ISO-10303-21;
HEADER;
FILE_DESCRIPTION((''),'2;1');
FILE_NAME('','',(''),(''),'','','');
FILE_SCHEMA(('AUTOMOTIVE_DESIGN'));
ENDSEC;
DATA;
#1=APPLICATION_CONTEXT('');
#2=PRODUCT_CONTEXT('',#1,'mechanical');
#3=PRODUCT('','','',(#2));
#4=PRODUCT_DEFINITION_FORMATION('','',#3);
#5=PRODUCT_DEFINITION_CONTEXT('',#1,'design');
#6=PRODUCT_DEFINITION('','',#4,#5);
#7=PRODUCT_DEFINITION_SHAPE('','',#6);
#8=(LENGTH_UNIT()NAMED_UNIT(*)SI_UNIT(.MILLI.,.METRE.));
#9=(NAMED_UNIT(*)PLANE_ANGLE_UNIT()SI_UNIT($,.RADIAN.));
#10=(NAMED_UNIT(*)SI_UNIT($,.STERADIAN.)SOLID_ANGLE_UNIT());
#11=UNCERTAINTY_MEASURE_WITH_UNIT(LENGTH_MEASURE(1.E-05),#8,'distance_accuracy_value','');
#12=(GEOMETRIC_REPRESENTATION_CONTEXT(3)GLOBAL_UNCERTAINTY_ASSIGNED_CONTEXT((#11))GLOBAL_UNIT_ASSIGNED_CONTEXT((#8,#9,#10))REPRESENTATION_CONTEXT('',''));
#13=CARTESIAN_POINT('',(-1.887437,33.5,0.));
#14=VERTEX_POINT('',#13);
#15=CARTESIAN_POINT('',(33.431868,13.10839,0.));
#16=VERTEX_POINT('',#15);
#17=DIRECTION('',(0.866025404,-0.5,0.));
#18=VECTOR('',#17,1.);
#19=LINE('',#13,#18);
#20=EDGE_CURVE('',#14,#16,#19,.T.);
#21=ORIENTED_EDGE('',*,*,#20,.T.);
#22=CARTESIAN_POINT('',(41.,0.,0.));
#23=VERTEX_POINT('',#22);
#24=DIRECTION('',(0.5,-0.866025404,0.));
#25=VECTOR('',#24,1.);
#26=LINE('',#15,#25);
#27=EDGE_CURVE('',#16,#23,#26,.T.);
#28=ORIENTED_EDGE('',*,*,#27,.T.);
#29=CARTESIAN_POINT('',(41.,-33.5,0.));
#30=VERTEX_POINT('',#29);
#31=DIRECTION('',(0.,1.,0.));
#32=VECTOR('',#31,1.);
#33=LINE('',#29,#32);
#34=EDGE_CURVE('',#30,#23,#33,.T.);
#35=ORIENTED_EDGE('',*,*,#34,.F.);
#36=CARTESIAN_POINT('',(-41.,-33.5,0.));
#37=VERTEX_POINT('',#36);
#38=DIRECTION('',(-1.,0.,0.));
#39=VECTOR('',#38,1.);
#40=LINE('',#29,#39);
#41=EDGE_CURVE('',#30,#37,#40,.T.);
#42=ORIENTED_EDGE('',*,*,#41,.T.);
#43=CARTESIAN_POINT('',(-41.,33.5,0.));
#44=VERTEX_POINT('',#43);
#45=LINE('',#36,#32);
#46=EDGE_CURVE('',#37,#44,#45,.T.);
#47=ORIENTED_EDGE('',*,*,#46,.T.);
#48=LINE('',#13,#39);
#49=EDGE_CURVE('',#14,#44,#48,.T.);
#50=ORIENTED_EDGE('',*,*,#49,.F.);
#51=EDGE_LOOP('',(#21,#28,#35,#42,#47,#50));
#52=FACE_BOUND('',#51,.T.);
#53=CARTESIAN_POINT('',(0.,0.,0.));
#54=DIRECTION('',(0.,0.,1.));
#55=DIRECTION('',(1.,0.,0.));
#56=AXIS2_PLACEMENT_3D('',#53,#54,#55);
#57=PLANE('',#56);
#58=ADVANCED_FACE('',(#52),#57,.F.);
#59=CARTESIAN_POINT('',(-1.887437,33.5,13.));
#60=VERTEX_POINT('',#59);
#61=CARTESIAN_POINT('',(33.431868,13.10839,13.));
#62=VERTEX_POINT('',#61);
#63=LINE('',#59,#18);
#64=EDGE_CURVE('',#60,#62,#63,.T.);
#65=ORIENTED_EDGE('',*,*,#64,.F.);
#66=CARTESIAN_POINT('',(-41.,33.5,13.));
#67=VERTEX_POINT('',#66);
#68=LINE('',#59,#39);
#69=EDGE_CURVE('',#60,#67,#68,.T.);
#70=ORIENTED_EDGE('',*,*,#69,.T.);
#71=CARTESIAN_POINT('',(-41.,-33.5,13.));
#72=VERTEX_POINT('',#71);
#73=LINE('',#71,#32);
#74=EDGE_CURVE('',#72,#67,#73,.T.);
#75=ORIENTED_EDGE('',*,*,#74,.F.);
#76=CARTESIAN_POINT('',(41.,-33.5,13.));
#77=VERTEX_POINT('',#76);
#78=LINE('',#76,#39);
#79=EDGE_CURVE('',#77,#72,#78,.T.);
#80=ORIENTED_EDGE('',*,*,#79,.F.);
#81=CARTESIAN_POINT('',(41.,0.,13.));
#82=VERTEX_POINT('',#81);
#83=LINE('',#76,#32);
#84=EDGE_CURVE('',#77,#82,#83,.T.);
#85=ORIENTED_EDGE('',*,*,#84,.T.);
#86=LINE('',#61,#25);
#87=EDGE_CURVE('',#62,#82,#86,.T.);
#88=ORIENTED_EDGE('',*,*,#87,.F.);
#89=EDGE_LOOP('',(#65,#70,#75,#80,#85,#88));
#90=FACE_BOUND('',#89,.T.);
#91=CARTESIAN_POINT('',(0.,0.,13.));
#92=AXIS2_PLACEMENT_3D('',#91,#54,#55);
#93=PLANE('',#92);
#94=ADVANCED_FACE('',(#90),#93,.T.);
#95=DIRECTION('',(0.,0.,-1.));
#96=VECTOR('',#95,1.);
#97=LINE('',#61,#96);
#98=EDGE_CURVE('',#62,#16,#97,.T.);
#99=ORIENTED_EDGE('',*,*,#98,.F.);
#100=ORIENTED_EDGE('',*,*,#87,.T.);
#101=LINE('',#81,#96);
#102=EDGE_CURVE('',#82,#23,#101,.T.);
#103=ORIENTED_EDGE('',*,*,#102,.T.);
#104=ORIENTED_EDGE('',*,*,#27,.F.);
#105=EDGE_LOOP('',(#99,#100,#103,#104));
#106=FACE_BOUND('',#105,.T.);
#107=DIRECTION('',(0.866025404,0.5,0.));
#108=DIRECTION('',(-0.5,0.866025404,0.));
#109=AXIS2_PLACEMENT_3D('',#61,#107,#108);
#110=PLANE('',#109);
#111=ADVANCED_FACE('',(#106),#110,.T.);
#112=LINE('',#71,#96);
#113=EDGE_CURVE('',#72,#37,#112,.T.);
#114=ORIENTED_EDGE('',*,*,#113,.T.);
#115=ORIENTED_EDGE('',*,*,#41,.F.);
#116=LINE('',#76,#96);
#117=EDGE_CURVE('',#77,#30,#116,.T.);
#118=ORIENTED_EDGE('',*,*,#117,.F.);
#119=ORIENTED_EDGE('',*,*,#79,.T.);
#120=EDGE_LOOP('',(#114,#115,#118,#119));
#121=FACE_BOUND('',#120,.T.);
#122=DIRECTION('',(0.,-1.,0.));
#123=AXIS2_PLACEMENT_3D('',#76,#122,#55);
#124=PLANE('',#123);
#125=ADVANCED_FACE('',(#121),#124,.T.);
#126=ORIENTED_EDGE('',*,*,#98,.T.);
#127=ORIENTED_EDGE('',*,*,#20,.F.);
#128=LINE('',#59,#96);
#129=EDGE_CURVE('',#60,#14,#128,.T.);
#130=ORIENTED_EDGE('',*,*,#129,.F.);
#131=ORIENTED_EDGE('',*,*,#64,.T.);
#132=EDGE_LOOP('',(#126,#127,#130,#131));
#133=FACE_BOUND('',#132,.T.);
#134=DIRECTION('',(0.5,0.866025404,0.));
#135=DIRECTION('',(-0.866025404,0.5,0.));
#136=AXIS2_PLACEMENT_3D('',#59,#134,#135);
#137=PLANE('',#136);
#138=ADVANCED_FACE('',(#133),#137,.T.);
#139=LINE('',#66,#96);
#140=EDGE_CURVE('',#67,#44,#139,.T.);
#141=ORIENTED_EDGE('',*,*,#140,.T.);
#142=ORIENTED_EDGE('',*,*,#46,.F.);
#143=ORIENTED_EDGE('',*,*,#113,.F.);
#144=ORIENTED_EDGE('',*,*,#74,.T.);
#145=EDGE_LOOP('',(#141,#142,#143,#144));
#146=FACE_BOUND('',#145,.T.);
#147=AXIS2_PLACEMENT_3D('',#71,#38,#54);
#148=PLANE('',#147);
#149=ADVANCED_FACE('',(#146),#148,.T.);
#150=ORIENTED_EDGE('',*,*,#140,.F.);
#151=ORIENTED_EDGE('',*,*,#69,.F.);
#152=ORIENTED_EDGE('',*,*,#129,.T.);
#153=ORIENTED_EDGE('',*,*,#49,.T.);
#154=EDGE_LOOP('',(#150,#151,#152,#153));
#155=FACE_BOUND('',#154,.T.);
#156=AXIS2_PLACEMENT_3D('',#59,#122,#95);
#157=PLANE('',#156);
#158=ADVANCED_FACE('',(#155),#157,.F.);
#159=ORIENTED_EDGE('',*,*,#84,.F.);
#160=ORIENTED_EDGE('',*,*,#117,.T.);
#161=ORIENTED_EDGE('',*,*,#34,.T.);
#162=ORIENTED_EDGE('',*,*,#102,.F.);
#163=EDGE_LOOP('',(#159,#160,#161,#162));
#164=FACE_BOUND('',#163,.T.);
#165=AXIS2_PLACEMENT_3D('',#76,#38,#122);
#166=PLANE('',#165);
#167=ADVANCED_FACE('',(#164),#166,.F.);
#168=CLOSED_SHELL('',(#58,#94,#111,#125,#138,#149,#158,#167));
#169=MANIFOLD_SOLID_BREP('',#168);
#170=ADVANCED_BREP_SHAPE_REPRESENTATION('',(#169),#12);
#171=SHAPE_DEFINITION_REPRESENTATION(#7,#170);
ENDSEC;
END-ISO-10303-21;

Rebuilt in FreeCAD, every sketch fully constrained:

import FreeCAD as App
import Part
import Sketcher

V = App.Vector
Q = App.Units.Quantity

doc = App.newDocument("Part")
params = doc.addObject("Spreadsheet::Sheet", "Params")
for row, (alias, value) in enumerate([
    ("sketch1_width", "82 mm"),
    ("sketch1_height", "67 mm"),
    ("pad1_length", "13 mm"),
], start=1):
    params.set(f"A{row}", alias)
    params.set(f"B{row}", "=" + value)
    params.setAlias(f"B{row}", alias)

body = doc.addObject("PartDesign::Body", "Body")

sketch1 = body.newObject("Sketcher::SketchObject", "Sketch")
sketch1.AttachmentSupport = (doc.getObject("XY_Plane"), [""])
sketch1.MapMode = "FlatFace"
sketch1.addGeometry(Part.LineSegment(V(-41, -34, 0), V(41, -34, 0)), False)
sketch1.addGeometry(Part.LineSegment(V(41, -34, 0), V(41, 0, 0)), False)
sketch1.addGeometry(Part.LineSegment(V(41, 0, 0), V(33, 13, 0)), False)
sketch1.addGeometry(Part.LineSegment(V(33, 13, 0), V(-2, 34, 0)), False)
sketch1.addGeometry(Part.LineSegment(V(-2, 34, 0), V(-41, 34, 0)), False)
sketch1.addGeometry(Part.LineSegment(V(-41, 34, 0), V(-41, -34, 0)), False)
sketch1.addConstraint(Sketcher.Constraint("Coincident", 0, 2, 1, 1))
sketch1.addConstraint(Sketcher.Constraint("Coincident", 1, 2, 2, 1))
sketch1.addConstraint(Sketcher.Constraint("Coincident", 2, 2, 3, 1))
sketch1.addConstraint(Sketcher.Constraint("Coincident", 3, 2, 4, 1))
sketch1.addConstraint(Sketcher.Constraint("Coincident", 4, 2, 5, 1))
sketch1.addConstraint(Sketcher.Constraint("Coincident", 5, 2, 0, 1))
sketch1.addConstraint(Sketcher.Constraint("Horizontal", 0))
sketch1.addConstraint(Sketcher.Constraint("Vertical", 1))
sketch1.addConstraint(Sketcher.Constraint("Horizontal", 4))
sketch1.addConstraint(Sketcher.Constraint("Vertical", 5))
sketch1.addConstraint(Sketcher.Constraint("Symmetric", 0, 2, 4, 2, -1, 1))
sketch1.addConstraint(Sketcher.Constraint("PointOnObject", 1, 2, -1))
sketch1.addConstraint(Sketcher.Constraint("DistanceX", 0, 1, 0, 2, 82.0))
sketch1.addConstraint(Sketcher.Constraint("DistanceY", 5, 2, 5, 1, 67.0))
sketch1.addConstraint(Sketcher.Constraint("Angle", 2, Q("120 deg")))
sketch1.addConstraint(Sketcher.Constraint("Angle", 3, Q("150 deg")))
sketch1.addConstraint(Sketcher.Constraint("Distance", 3, 40.78322))
sketch1.setExpression("Constraints[12]", "Params.sketch1_width")
sketch1.setExpression("Constraints[13]", "Params.sketch1_height")
pad1 = body.newObject("PartDesign::Pad", "Pad")
pad1.Profile = sketch1
pad1.setExpression("Length", "Params.pad1_length")

doc.recompute()
